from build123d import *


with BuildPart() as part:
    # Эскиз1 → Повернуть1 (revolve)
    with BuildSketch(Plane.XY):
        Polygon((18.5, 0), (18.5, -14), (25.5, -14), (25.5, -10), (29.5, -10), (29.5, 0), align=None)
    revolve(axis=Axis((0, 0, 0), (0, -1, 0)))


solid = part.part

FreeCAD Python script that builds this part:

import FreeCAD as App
import Part
import Sketcher
Q = App.Units.Quantity

doc = App.newDocument("Part")
body = doc.addObject("PartDesign::Body", "Body")

sketch1 = body.newObject("Sketcher::SketchObject", "Sketch")
sketch1.AttachmentSupport = (doc.getObject("XY_Plane"), [""])
sketch1.MapMode = "FlatFace"
sketch1.addGeometry([
    Part.LineSegment(App.Vector(18.5, 0, 0), App.Vector(18.5, -14, 0)),
    Part.LineSegment(App.Vector(18.5, -14, 0), App.Vector(25.5, -14, 0)),
    Part.LineSegment(App.Vector(25.5, -14, 0), App.Vector(25.5, -10, 0)),
    Part.LineSegment(App.Vector(25.5, -10, 0), App.Vector(29.5, -10, 0)),
    Part.LineSegment(App.Vector(29.5, -10, 0), App.Vector(29.5, 0, 0)),
    Part.LineSegment(App.Vector(29.5, 0, 0), App.Vector(18.5, 0, 0)),
], False)
sketch1.addConstraint([
    Sketcher.Constraint("Coincident", 0, 2, 1, 1),
    Sketcher.Constraint("Coincident", 1, 2, 2, 1),
    Sketcher.Constraint("Coincident", 2, 2, 3, 1),
    Sketcher.Constraint("Coincident", 3, 2, 4, 1),
    Sketcher.Constraint("Coincident", 4, 2, 5, 1),
    Sketcher.Constraint("Coincident", 5, 2, 0, 1),
    Sketcher.Constraint("Vertical", 0),
    Sketcher.Constraint("Horizontal", 1),
    Sketcher.Constraint("Vertical", 2),
    Sketcher.Constraint("Horizontal", 3),
    Sketcher.Constraint("Vertical", 4),
    Sketcher.Constraint("Horizontal", 5),
    Sketcher.Constraint("PointOnObject", 4, 2, -1),
    Sketcher.Constraint("Equal", 3, 2),
    Sketcher.Constraint("DistanceX", 1, 1, 1, 2, Q("7 mm")),
    Sketcher.Constraint("DistanceX", 3, 1, 3, 2, Q("4 mm")),
    Sketcher.Constraint("DistanceY", 0, 2, 0, 1, Q("14 mm")),
    Sketcher.Constraint("DistanceX", -1, 1, 0, 2, Q("18.5 mm")),
])
revolution = body.newObject("PartDesign::Revolution", "Revolution")
revolution.Profile = sketch1
revolution.ReferenceAxis = (sketch1, ["V_Axis"])
revolution.Angle = 360

doc.recompute()
